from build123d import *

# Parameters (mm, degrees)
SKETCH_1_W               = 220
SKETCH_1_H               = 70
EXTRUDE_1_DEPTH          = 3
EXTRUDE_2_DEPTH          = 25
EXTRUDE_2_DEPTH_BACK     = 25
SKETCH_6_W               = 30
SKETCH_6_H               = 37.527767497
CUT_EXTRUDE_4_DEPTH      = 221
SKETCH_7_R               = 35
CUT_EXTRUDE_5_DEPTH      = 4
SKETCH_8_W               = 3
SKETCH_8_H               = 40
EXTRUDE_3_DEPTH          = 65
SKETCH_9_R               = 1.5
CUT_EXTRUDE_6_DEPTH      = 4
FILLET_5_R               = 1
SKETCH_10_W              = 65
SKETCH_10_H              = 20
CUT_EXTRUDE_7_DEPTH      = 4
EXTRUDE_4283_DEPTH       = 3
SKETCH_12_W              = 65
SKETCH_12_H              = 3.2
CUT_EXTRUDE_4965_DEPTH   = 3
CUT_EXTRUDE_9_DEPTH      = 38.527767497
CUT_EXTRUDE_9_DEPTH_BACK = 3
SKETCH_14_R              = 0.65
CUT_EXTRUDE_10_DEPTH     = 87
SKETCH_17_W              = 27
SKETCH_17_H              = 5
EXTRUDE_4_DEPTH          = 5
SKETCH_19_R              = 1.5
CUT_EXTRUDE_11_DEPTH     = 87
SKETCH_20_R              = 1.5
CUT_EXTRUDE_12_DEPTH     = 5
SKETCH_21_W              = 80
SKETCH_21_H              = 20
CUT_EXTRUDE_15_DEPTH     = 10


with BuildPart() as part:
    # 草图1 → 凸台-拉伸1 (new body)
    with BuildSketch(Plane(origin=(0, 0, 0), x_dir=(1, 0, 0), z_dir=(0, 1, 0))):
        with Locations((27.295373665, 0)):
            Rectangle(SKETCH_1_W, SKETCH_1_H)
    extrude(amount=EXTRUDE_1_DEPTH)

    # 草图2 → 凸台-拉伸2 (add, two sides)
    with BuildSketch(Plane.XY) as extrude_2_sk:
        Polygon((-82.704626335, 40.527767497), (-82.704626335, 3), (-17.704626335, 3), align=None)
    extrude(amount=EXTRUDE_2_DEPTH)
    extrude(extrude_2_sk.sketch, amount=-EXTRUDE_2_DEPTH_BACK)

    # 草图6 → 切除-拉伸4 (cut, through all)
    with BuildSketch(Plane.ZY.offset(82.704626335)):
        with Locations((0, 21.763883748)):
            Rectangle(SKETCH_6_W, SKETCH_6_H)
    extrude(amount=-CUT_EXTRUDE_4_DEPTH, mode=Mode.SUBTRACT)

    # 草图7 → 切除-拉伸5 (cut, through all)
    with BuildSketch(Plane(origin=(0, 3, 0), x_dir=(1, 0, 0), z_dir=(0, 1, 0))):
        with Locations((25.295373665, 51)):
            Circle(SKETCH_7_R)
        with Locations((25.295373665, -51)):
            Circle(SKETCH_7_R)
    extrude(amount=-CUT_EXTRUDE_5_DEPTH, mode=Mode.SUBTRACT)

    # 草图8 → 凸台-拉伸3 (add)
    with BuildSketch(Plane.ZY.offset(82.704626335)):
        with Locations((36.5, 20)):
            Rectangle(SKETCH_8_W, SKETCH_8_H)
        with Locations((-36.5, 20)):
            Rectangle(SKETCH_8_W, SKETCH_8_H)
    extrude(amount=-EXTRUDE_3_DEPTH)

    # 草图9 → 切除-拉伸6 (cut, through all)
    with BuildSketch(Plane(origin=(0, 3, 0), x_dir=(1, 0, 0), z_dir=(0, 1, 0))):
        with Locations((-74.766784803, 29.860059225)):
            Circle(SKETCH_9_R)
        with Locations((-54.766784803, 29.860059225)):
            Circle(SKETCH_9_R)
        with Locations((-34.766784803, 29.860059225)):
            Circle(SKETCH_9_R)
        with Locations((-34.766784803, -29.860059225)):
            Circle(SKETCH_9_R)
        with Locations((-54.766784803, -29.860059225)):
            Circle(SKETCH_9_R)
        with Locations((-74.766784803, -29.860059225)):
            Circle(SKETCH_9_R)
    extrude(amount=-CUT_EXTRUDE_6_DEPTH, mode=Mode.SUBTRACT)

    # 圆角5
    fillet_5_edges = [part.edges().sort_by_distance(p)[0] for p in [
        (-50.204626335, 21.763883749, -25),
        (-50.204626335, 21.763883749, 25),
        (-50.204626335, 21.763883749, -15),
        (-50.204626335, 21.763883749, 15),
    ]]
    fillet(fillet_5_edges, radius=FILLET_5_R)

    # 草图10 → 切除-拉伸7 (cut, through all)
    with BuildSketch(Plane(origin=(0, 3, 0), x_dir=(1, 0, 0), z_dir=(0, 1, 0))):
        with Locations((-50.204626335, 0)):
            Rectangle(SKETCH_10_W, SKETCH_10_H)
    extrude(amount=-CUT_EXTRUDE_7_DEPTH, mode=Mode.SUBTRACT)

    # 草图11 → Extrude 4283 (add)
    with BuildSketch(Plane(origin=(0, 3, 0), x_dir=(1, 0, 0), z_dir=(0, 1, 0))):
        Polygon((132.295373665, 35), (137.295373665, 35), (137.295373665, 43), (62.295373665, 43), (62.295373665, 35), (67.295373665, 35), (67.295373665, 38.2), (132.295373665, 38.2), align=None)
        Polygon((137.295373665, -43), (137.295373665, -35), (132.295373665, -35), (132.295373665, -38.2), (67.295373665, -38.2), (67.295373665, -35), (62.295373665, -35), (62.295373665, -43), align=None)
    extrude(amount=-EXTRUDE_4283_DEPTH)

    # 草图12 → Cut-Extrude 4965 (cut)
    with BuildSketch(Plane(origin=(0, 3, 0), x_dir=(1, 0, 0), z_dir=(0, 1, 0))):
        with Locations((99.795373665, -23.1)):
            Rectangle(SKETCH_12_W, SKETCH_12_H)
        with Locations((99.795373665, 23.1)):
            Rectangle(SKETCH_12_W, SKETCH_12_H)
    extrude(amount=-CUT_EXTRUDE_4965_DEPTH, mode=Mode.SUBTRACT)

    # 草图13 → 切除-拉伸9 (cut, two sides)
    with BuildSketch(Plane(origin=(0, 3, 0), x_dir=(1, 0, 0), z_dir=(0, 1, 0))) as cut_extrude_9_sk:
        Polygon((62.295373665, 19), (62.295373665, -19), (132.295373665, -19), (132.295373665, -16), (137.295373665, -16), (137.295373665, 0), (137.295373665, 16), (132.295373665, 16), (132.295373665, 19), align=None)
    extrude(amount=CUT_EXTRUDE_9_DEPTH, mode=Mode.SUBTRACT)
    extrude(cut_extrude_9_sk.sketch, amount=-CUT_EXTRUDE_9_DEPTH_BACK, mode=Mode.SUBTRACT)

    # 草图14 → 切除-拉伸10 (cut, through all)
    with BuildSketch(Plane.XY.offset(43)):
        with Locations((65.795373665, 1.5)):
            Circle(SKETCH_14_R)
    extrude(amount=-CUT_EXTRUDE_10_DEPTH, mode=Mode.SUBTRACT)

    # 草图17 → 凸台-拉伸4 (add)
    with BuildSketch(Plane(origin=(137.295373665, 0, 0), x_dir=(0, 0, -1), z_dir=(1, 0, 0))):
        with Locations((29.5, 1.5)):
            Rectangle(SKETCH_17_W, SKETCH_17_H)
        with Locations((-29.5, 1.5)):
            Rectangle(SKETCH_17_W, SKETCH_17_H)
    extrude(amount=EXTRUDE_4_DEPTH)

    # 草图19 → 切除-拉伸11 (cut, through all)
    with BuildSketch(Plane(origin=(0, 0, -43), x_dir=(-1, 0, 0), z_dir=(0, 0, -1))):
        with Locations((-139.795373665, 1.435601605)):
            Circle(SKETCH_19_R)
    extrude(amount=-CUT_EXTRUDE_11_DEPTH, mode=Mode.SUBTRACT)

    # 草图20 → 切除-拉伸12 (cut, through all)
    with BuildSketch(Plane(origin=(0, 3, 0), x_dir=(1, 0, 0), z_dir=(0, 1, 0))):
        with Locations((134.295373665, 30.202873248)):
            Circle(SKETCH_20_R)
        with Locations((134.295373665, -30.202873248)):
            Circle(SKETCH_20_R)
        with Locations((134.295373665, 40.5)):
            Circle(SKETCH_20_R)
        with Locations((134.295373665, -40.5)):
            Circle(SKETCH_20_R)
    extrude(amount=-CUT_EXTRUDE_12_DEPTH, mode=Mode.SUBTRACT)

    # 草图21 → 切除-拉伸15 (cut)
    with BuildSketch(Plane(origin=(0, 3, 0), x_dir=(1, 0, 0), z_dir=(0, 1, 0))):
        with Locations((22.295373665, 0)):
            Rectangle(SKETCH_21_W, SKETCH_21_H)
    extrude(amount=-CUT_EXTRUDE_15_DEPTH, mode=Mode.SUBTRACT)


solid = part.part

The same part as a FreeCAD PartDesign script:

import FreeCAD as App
import Part
import Sketcher
Q = App.Units.Quantity


def edges_at(feature, points):
    """Names of the edges that pass closest to the given points."""
    edges = feature.Shape.Edges
    near = lambda p: min(range(len(edges)), key=lambda i: edges[i].distToShape(Part.Vertex(*p))[0])
    return sorted({f"Edge{near(p) + 1}" for p in points})

doc = App.newDocument("Part")
body = doc.addObject("PartDesign::Body", "Body")
body.AllowCompound = True

# Sketch on XZ plane
sketch1 = body.newObject("Sketcher::SketchObject", "Sketch")
sketch1.AttachmentSupport = (doc.getObject("XZ_Plane"), [""])
sketch1.MapMode = "FlatFace"
sketch1.addGeometry([
    Part.LineSegment(App.Vector(-83, -35, 0), App.Vector(-83, 35, 0)),
    Part.LineSegment(App.Vector(-83, 35, 0), App.Vector(137, 35, 0)),
    Part.LineSegment(App.Vector(137, 35, 0), App.Vector(137, -35, 0)),
    Part.LineSegment(App.Vector(137, -35, 0), App.Vector(-83, -35, 0)),
], False)
sketch1.addConstraint([
    Sketcher.Constraint("Coincident", 0, 2, 1, 1),
    Sketcher.Constraint("Coincident", 1, 2, 2, 1),
    Sketcher.Constraint("Coincident", 2, 2, 3, 1),
    Sketcher.Constraint("Coincident", 3, 2, 0, 1),
    Sketcher.Constraint("Vertical", 0),
    Sketcher.Constraint("Horizontal", 1),
    Sketcher.Constraint("Vertical", 2),
    Sketcher.Constraint("Horizontal", 3),
    Sketcher.Constraint("DistanceX", 1, 1, 1, 2, Q("220 mm")),
    Sketcher.Constraint("DistanceY", 0, 1, 0, 2, Q("70 mm")),
    Sketcher.Constraint("DistanceY", -1, 1, 0, 2, Q("35 mm")),
    Sketcher.Constraint("DistanceX", 0, 2, -1, 1, Q("82.704626 mm")),
])
pad1 = body.newObject("PartDesign::Pad", "Pad")
pad1.Profile = sketch1
pad1.Length = 3
pad1.Reversed = True

# Sketch on XY plane
sketch2 = body.newObject("Sketcher::SketchObject", "Sketch001")
sketch2.AttachmentSupport = (doc.getObject("XY_Plane"), [""])
sketch2.MapMode = "FlatFace"
sketch2.addGeometry([
    Part.LineSegment(App.Vector(-83, 41, 0), App.Vector(-83, 3, 0)),
    Part.LineSegment(App.Vector(-83, 3, 0), App.Vector(-18, 3, 0)),
    Part.LineSegment(App.Vector(-18, 3, 0), App.Vector(-83, 41, 0)),
], False)
sketch2.addConstraint([
    Sketcher.Constraint("Coincident", 0, 2, 1, 1),
    Sketcher.Constraint("Coincident", 1, 2, 2, 1),
    Sketcher.Constraint("Coincident", 2, 2, 0, 1),
    Sketcher.Constraint("Vertical", 0),
    Sketcher.Constraint("Horizontal", 1),
    Sketcher.Constraint("DistanceX", 1, 1, 1, 2, Q("65 mm")),
    Sketcher.Constraint("Angle", 2, Q("150 deg")),
    Sketcher.Constraint("DistanceY", -1, 1, 0, 2, Q("3 mm")),
    Sketcher.Constraint("DistanceX", 0, 2, -1, 1, Q("82.704626 mm")),
])
pad2 = body.newObject("PartDesign::Pad", "Pad001")
pad2.Profile = sketch2
pad2.Type = "TwoLengths"
pad2.Length = 25
pad2.Length2 = 25

# Sketch on YZ plane
sketch3 = body.newObject("Sketcher::SketchObject", "Sketch002")
sketch3.AttachmentSupport = (doc.getObject("YZ_Plane"), [""])
sketch3.MapMode = "FlatFace"
sketch3.AttachmentOffset = App.Placement(App.Vector(0, 0, -82.704626), App.Rotation())
sketch3.addGeometry([
    Part.LineSegment(App.Vector(41, -15, 0), App.Vector(3, -15, 0)),
    Part.LineSegment(App.Vector(3, -15, 0), App.Vector(3, 15, 0)),
    Part.LineSegment(App.Vector(3, 15, 0), App.Vector(41, 15, 0)),
    Part.LineSegment(App.Vector(41, 15, 0), App.Vector(41, -15, 0)),
], False)
sketch3.addConstraint([
    Sketcher.Constraint("Coincident", 0, 2, 1, 1),
    Sketcher.Constraint("Coincident", 1, 2, 2, 1),
    Sketcher.Constraint("Coincident", 2, 2, 3, 1),
    Sketcher.Constraint("Coincident", 3, 2, 0, 1),
    Sketcher.Constraint("Horizontal", 0),
    Sketcher.Constraint("Vertical", 1),
    Sketcher.Constraint("Horizontal", 2),
    Sketcher.Constraint("Vertical", 3),
    Sketcher.Constraint("DistanceY", 1, 1, 1, 2, Q("30 mm")),
    Sketcher.Constraint("DistanceX", -1, 1, 0, 2, Q("3 mm")),
    Sketcher.Constraint("DistanceY", 0, 2, -1, 1, Q("15 mm")),
    Sketcher.Constraint("DistanceX", 0, 2, 0, 1, Q("37.527767 mm")),
])
pocket1 = body.newObject("PartDesign::Pocket", "Pocket")
pocket1.Profile = sketch3
pocket1.Type = "ThroughAll"
pocket1.Reversed = True

# Sketch on XZ plane
sketch4 = body.newObject("Sketcher::SketchObject", "Sketch003")
sketch4.AttachmentSupport = (doc.getObject("XZ_Plane"), [""])
sketch4.MapMode = "FlatFace"
sketch4.AttachmentOffset = App.Placement(App.Vector(0, 0, -3), App.Rotation())
sketch4.addGeometry([
    Part.Circle(App.Vector(25, -51, 0), App.Vector(0, 0, 1), 35),
    Part.Circle(App.Vector(25, 51, 0), App.Vector(0, 0, 1), 35),
], False)
sketch4.addConstraint([
    Sketcher.Constraint("Equal", 0, 1),
    Sketcher.Constraint("Symmetric", 0, 3, 1, 3, -1),
    Sketcher.Constraint("Diameter", 0, Q("70 mm")),
    Sketcher.Constraint("DistanceY", 0, 3, -1, 1, Q("51 mm")),
    Sketcher.Constraint("DistanceX", -1, 1, 0, 3, Q("25.295374 mm")),
])
pocket2 = body.newObject("PartDesign::Pocket", "Pocket001")
pocket2.Profile = sketch4
pocket2.Type = "ThroughAll"
pocket2.Reversed = True

# Sketch on YZ plane
sketch5 = body.newObject("Sketcher::SketchObject", "Sketch004")
sketch5.AttachmentSupport = (doc.getObject("YZ_Plane"), [""])
sketch5.MapMode = "FlatFace"
sketch5.AttachmentOffset = App.Placement(App.Vector(0, 0, -82.704626), App.Rotation())
sketch5.addGeometry([
    Part.LineSegment(App.Vector(40, 35, 0), App.Vector(0, 35, 0)),  # 0
    Part.LineSegment(App.Vector(0, 35, 0), App.Vector(0, 38, 0)),  # 1
    Part.LineSegment(App.Vector(0, 38, 0), App.Vector(40, 38, 0)),  # 2
    Part.LineSegment(App.Vector(40, 38, 0), App.Vector(40, 35, 0)),  # 3
    Part.LineSegment(App.Vector(40, -38, 0), App.Vector(0, -38, 0)),  # 4
    Part.LineSegment(App.Vector(0, -38, 0), App.Vector(0, -35, 0)),  # 5
    Part.LineSegment(App.Vector(0, -35, 0), App.Vector(40, -35, 0)),  # 6
    Part.LineSegment(App.Vector(40, -35, 0), App.Vector(40, -38, 0)),  # 7
], False)
sketch5.addConstraint([
    Sketcher.Constraint("Coincident", 0, 2, 1, 1),
    Sketcher.Constraint("Coincident", 1, 2, 2, 1),
    Sketcher.Constraint("Coincident", 2, 2, 3, 1),
    Sketcher.Constraint("Coincident", 3, 2, 0, 1),
    Sketcher.Constraint("Coincident", 4, 2, 5, 1),
    Sketcher.Constraint("Coincident", 5, 2, 6, 1),
    Sketcher.Constraint("Coincident", 6, 2, 7, 1),
    Sketcher.Constraint("Coincident", 7, 2, 4, 1),
    Sketcher.Constraint("Horizontal", 0),
    Sketcher.Constraint("Vertical", 1),
    Sketcher.Constraint("Horizontal", 2),
    Sketcher.Constraint("Vertical", 3),
    Sketcher.Constraint("Horizontal", 4),
    Sketcher.Constraint("Vertical", 5),
    Sketcher.Constraint("Horizontal", 6),
    Sketcher.Constraint("Vertical", 7),
    Sketcher.Constraint("Symmetric", 1, 2, 4, 2, -1, 1),
    Sketcher.Constraint("Symmetric", 0, 2, 5, 2, -1),
    Sketcher.Constraint("Vertical", 3, 2, 6, 2),
    Sketcher.Constraint("DistanceX", 0, 2, 0, 1, Q("40 mm")),
    Sketcher.Constraint("DistanceY", 1, 1, 1, 2, Q("3 mm")),
    Sketcher.Constraint("DistanceY", -1, 1, 0, 2, Q("35 mm")),
])
pad3 = body.newObject("PartDesign::Pad", "Pad002")
pad3.Profile = sketch5
pad3.Length = 65

# Sketch on XZ plane
sketch6 = body.newObject("Sketcher::SketchObject", "Sketch005")
sketch6.AttachmentSupport = (doc.getObject("XZ_Plane"), [""])
sketch6.MapMode = "FlatFace"
sketch6.AttachmentOffset = App.Placement(App.Vector(0, 0, -3), App.Rotation())
sketch6.addGeometry([
    Part.Circle(App.Vector(-74.8, -29.9, 0), App.Vector(0, 0, 1), 1.5),  # 0
    Part.Circle(App.Vector(-54.8, -29.9, 0), App.Vector(0, 0, 1), 1.5),  # 1
    Part.Circle(App.Vector(-34.8, -29.9, 0), App.Vector(0, 0, 1), 1.5),  # 2
    Part.Circle(App.Vector(-34.8, 29.9, 0), App.Vector(0, 0, 1), 1.5),  # 3
    Part.Circle(App.Vector(-54.8, 29.9, 0), App.Vector(0, 0, 1), 1.5),  # 4
    Part.Circle(App.Vector(-74.8, 29.9, 0), App.Vector(0, 0, 1), 1.5),  # 5
], False)
sketch6.addConstraint([
    Sketcher.Constraint("Equal", 0, 1),
    Sketcher.Constraint("Equal", 1, 2),
    Sketcher.Constraint("Equal", 2, 3),
    Sketcher.Constraint("Equal", 3, 4),
    Sketcher.Constraint("Equal", 4, 5),
    Sketcher.Constraint("Symmetric", 2, 3, 3, 3, -1),
    Sketcher.Constraint("Symmetric", 1, 3, 4, 3, -1),
    Sketcher.Constraint("Symmetric", 0, 3, 5, 3, -1),
    Sketcher.Constraint("Horizontal", 0, 3, 1, 3),
    Sketcher.Constraint("Horizontal", 1, 3, 2, 3),
    Sketcher.Constraint("Diameter", 0, Q("3 mm")),
    Sketcher.Constraint("DistanceX", 0, 3, 1, 3, Q("20 mm")),
    Sketcher.Constraint("DistanceX", 1, 3, 2, 3, Q("20 mm")),
    Sketcher.Constraint("DistanceY", 0, 3, -1, 1, Q("29.860059 mm")),
    Sketcher.Constraint("DistanceX", 0, 3, -1, 1, Q("74.766785 mm")),
])
pocket3 = body.newObject("PartDesign::Pocket", "Pocket002")
pocket3.Profile = sketch6
pocket3.Type = "ThroughAll"
pocket3.Reversed = True
doc.recompute()

fillet = body.newObject("PartDesign::Fillet", "Fillet")
fillet.Base = (pocket3, edges_at(pocket3, [
    (-50.205, 21.764, -25),
    (-50.205, 21.764, 25),
    (-50.205, 21.764, -15),
    (-50.205, 21.764, 15),
]))
fillet.Radius = 1

# Sketch on XZ plane
sketch7 = body.newObject("Sketcher::SketchObject", "Sketch006")
sketch7.AttachmentSupport = (doc.getObject("XZ_Plane"), [""])
sketch7.MapMode = "FlatFace"
sketch7.AttachmentOffset = App.Placement(App.Vector(0, 0, -3), App.Rotation())
sketch7.addGeometry([
    Part.LineSegment(App.Vector(-83, -10, 0), App.Vector(-83, 10, 0)),
    Part.LineSegment(App.Vector(-83, 10, 0), App.Vector(-18, 10, 0)),
    Part.LineSegment(App.Vector(-18, 10, 0), App.Vector(-18, -10, 0)),
    Part.LineSegment(App.Vector(-18, -10, 0), App.Vector(-83, -10, 0)),
], False)
sketch7.addConstraint([
    Sketcher.Constraint("Coincident", 0, 2, 1, 1),
    Sketcher.Constraint("Coincident", 1, 2, 2, 1),
    Sketcher.Constraint("Coincident", 2, 2, 3, 1),
    Sketcher.Constraint("Coincident", 3, 2, 0, 1),
    Sketcher.Constraint("Vertical", 0),
    Sketcher.Constraint("Horizontal", 1),
    Sketcher.Constraint("Vertical", 2),
    Sketcher.Constraint("Horizontal", 3),
    Sketcher.Constraint("DistanceX", 1, 1, 1, 2, Q("65 mm")),
    Sketcher.Constraint("DistanceY", 0, 1, 0, 2, Q("20 mm")),
    Sketcher.Constraint("DistanceY", -1, 1, 0, 2, Q("10 mm")),
    Sketcher.Constraint("DistanceX", 0, 2, -1, 1, Q("82.704626 mm")),
])
pocket4 = body.newObject("PartDesign::Pocket", "Pocket003")
pocket4.Profile = sketch7
pocket4.Type = "ThroughAll"
pocket4.Reversed = True

# Sketch on XZ plane
sketch8 = body.newObject("Sketcher::SketchObject", "Sketch007")
sketch8.AttachmentSupport = (doc.getObject("XZ_Plane"), [""])
sketch8.MapMode = "FlatFace"
sketch8.AttachmentOffset = App.Placement(App.Vector(0, 0, -3), App.Rotation())
sketch8.addGeometry([
    Part.LineSegment(App.Vector(132.3, -35, 0), App.Vector(137.3, -35, 0)),  # 0
    Part.LineSegment(App.Vector(137.3, -35, 0), App.Vector(137.3, -43, 0)),  # 1
    Part.LineSegment(App.Vector(137.3, -43, 0), App.Vector(62.3, -43, 0)),  # 2
    Part.LineSegment(App.Vector(62.3, -43, 0), App.Vector(62.3, -35, 0)),  # 3
    Part.LineSegment(App.Vector(62.3, -35, 0), App.Vector(67.3, -35, 0)),  # 4
    Part.LineSegment(App.Vector(67.3, -35, 0), App.Vector(67.3, -38.2, 0)),  # 5
    Part.LineSegment(App.Vector(67.3, -38.2, 0), App.Vector(132.3, -38.2, 0)),  # 6
    Part.LineSegment(App.Vector(132.3, -38.2, 0), App.Vector(132.3, -35, 0)),  # 7
    Part.LineSegment(App.Vector(137.3, 43, 0), App.Vector(137.3, 35, 0)),  # 8
    Part.LineSegment(App.Vector(137.3, 35, 0), App.Vector(132.3, 35, 0)),  # 9
    Part.LineSegment(App.Vector(132.3, 35, 0), App.Vector(132.3, 38.2, 0)),  # 10
    Part.LineSegment(App.Vector(132.3, 38.2, 0), App.Vector(67.3, 38.2, 0)),  # 11
    Part.LineSegment(App.Vector(67.3, 38.2, 0), App.Vector(67.3, 35, 0)),  # 12
    Part.LineSegment(App.Vector(67.3, 35, 0), App.Vector(62.3, 35, 0)),  # 13
    Part.LineSegment(App.Vector(62.3, 35, 0), App.Vector(62.3, 43, 0)),  # 14
    Part.LineSegment(App.Vector(62.3, 43, 0), App.Vector(137.3, 43, 0)),  # 15
], False)
sketch8.addConstraint([
    Sketcher.Constraint("Coincident", 0, 2, 1, 1),
    Sketcher.Constraint("Coincident", 1, 2, 2, 1),
    Sketcher.Constraint("Coincident", 2, 2, 3, 1),
    Sketcher.Constraint("Coincident", 3, 2, 4, 1),
    Sketcher.Constraint("Coincident", 4, 2, 5, 1),
    Sketcher.Constraint("Coincident", 5, 2, 6, 1),
    Sketcher.Constraint("Coincident", 6, 2, 7, 1),
    Sketcher.Constraint("Coincident", 7, 2, 0, 1),
    Sketcher.Constraint("Coincident", 8, 2, 9, 1),
    Sketcher.Constraint("Coincident", 9, 2, 10, 1),
    Sketcher.Constraint("Coincident", 10, 2, 11, 1),
    Sketcher.Constraint("Coincident", 11, 2, 12, 1),
    Sketcher.Constraint("Coincident", 12, 2, 13, 1),
    Sketcher.Constraint("Coincident", 13, 2, 14, 1),
    Sketcher.Constraint("Coincident", 14, 2, 15, 1),
    Sketcher.Constraint("Coincident", 15, 2, 8, 1),
    Sketcher.Constraint("Horizontal", 0),
    Sketcher.Constraint("Vertical", 1),
    Sketcher.Constraint("Horizontal", 2),
    Sketcher.Constraint("Vertical", 3),
    Sketcher.Constraint("Horizontal", 4),
    Sketcher.Constraint("Vertical", 5),
    Sketcher.Constraint("Horizontal", 6),
    Sketcher.Constraint("Vertical", 7),
    Sketcher.Constraint("Vertical", 8),
    Sketcher.Constraint("Horizontal", 9),
    Sketcher.Constraint("Vertical", 10),
    Sketcher.Constraint("Horizontal", 11),
    Sketcher.Constraint("Vertical", 12),
    Sketcher.Constraint("Horizontal", 13),
    Sketcher.Constraint("Vertical", 14),
    Sketcher.Constraint("Horizontal", 15),
    Sketcher.Constraint("Symmetric", 0, 2, 8, 2, -1),
    Sketcher.Constraint("Symmetric", 6, 2, 10, 2, -1),
    Sketcher.Constraint("Symmetric", 4, 2, 12, 2, -1),
    Sketcher.Constraint("Symmetric", 2, 2, 14, 2, -1),
    Sketcher.Constraint("Horizontal", 0, 2, 3, 2),
    Sketcher.Constraint("Equal", 0, 4),
    Sketcher.Constraint("DistanceX", 0, 1, 0, 2, Q("5 mm")),
    Sketcher.Constraint("DistanceX", 2, 2, 2, 1, Q("75 mm")),
    Sketcher.Constraint("DistanceY", 1, 2, 1, 1, Q("8 mm")),
    Sketcher.Constraint("DistanceY", 5, 2, 5, 1, Q("3.2 mm")),
    Sketcher.Constraint("DistanceY", 0, 2, -1, 1, Q("35 mm")),
    Sketcher.Constraint("DistanceX", -1, 1, 0, 2, Q("137.295374 mm")),
])
pad4 = body.newObject("PartDesign::Pad", "Pad003")
pad4.Profile = sketch8
pad4.Length = 3

# Sketch on XZ plane
sketch9 = body.newObject("Sketcher::SketchObject", "Sketch008")
sketch9.AttachmentSupport = (doc.getObject("XZ_Plane"), [""])
sketch9.MapMode = "FlatFace"
sketch9.AttachmentOffset = App.Placement(App.Vector(0, 0, -3), App.Rotation())
sketch9.addGeometry([
    Part.LineSegment(App.Vector(67.3, 21.5, 0), App.Vector(67.3, 24.7, 0)),  # 0
    Part.LineSegment(App.Vector(67.3, 24.7, 0), App.Vector(132.3, 24.7, 0)),  # 1
    Part.LineSegment(App.Vector(132.3, 24.7, 0), App.Vector(132.3, 21.5, 0)),  # 2
    Part.LineSegment(App.Vector(132.3, 21.5, 0), App.Vector(67.3, 21.5, 0)),  # 3
    Part.LineSegment(App.Vector(67.3, -24.7, 0), App.Vector(67.3, -21.5, 0)),  # 4
    Part.LineSegment(App.Vector(67.3, -21.5, 0), App.Vector(132.3, -21.5, 0)),  # 5
    Part.LineSegment(App.Vector(132.3, -21.5, 0), App.Vector(132.3, -24.7, 0)),  # 6
    Part.LineSegment(App.Vector(132.3, -24.7, 0), App.Vector(67.3, -24.7, 0)),  # 7
], False)
sketch9.addConstraint([
    Sketcher.Constraint("Coincident", 0, 2, 1, 1),
    Sketcher.Constraint("Coincident", 1, 2, 2, 1),
    Sketcher.Constraint("Coincident", 2, 2, 3, 1),
    Sketcher.Constraint("Coincident", 3, 2, 0, 1),
    Sketcher.Constraint("Coincident", 4, 2, 5, 1),
    Sketcher.Constraint("Coincident", 5, 2, 6, 1),
    Sketcher.Constraint("Coincident", 6, 2, 7, 1),
    Sketcher.Constraint("Coincident", 7, 2, 4, 1),
    Sketcher.Constraint("Vertical", 0),
    Sketcher.Constraint("Horizontal", 1),
    Sketcher.Constraint("Vertical", 2),
    Sketcher.Constraint("Horizontal", 3),
    Sketcher.Constraint("Vertical", 4),
    Sketcher.Constraint("Horizontal", 5),
    Sketcher.Constraint("Vertical", 6),
    Sketcher.Constraint("Horizontal", 7),
    Sketcher.Constraint("Symmetric", 3, 2, 4, 2, -1),
    Sketcher.Constraint("Symmetric", 1, 2, 6, 2, -1),
    Sketcher.Constraint("DistanceX", 1, 1, 1, 2, Q("65 mm")),
    Sketcher.Constraint("DistanceY", 0, 1, 0, 2, Q("3.2 mm")),
    Sketcher.Constraint("DistanceY", 4, 2, 3, 2, Q("43 mm")),
    Sketcher.Constraint("DistanceX", -1, 1, 0, 2, Q("67.295374 mm")),
])
pocket5 = body.newObject("PartDesign::Pocket", "Pocket004")
pocket5.Profile = sketch9
pocket5.Length = 3
pocket5.Reversed = True

# Sketch on XZ plane
sketch10 = body.newObject("Sketcher::SketchObject", "Sketch009")
sketch10.AttachmentSupport = (doc.getObject("XZ_Plane"), [""])
sketch10.MapMode = "FlatFace"
sketch10.AttachmentOffset = App.Placement(App.Vector(0, 0, -3), App.Rotation())
sketch10.addGeometry([
    Part.LineSegment(App.Vector(62.3, -19, 0), App.Vector(62.3, 19, 0)),  # 0
    Part.LineSegment(App.Vector(62.3, 19, 0), App.Vector(132.3, 19, 0)),  # 1
    Part.LineSegment(App.Vector(132.3, 19, 0), App.Vector(132.3, 16, 0)),  # 2
    Part.LineSegment(App.Vector(132.3, 16, 0), App.Vector(137.3, 16, 0)),  # 3
    Part.LineSegment(App.Vector(137.3, 16, 0), App.Vector(137.3, -16, 0)),  # 4
    Part.LineSegment(App.Vector(137.3, -16, 0), App.Vector(132.3, -16, 0)),  # 5
    Part.LineSegment(App.Vector(132.3, -16, 0), App.Vector(132.3, -19, 0)),  # 6
    Part.LineSegment(App.Vector(132.3, -19, 0), App.Vector(62.3, -19, 0)),  # 7
], False)
sketch10.addConstraint([
    Sketcher.Constraint("Coincident", 0, 2, 1, 1),
    Sketcher.Constraint("Coincident", 1, 2, 2, 1),
    Sketcher.Constraint("Coincident", 2, 2, 3, 1),
    Sketcher.Constraint("Coincident", 3, 2, 4, 1),
    Sketcher.Constraint("Coincident", 4, 2, 5, 1),
    Sketcher.Constraint("Coincident", 5, 2, 6, 1),
    Sketcher.Constraint("Coincident", 6, 2, 7, 1),
    Sketcher.Constraint("Coincident", 7, 2, 0, 1),
    Sketcher.Constraint("Vertical", 0),
    Sketcher.Constraint("Horizontal", 1),
    Sketcher.Constraint("Vertical", 2),
    Sketcher.Constraint("Horizontal", 3),
    Sketcher.Constraint("Vertical", 4),
    Sketcher.Constraint("Horizontal", 5),
    Sketcher.Constraint("Vertical", 6),
    Sketcher.Constraint("Horizontal", 7),
    Sketcher.Constraint("Symmetric", 2, 2, 5, 2, -1),
    Sketcher.Constraint("Equal", 2, 6),
    Sketcher.Constraint("DistanceX", 1, 1, 1, 2, Q("70 mm")),
    Sketcher.Constraint("DistanceX", 3, 1, 3, 2, Q("5 mm")),
    Sketcher.Constraint("DistanceY", 0, 1, 0, 2, Q("38 mm")),
    Sketcher.Constraint("DistanceY", 2, 2, 2, 1, Q("3 mm")),
    Sketcher.Constraint("DistanceX", -1, 1, 0, 2, Q("62.295374 mm")),
])
pocket6 = body.newObject("PartDesign::Pocket", "Pocket005")
pocket6.Profile = sketch10
pocket6.Type = "ThroughAll"
pocket6.Midplane = True

# Sketch on XY plane
sketch11 = body.newObject("Sketcher::SketchObject", "Sketch010")
sketch11.AttachmentSupport = (doc.getObject("XY_Plane"), [""])
sketch11.MapMode = "FlatFace"
sketch11.AttachmentOffset = App.Placement(App.Vector(0, 0, 43), App.Rotation())
sketch11.addGeometry(Part.Circle(App.Vector(65.8, 1.5, 0), App.Vector(0, 0, 1), 0.7), False)
sketch11.addConstraint([
    Sketcher.Constraint("Diameter", 0, Q("1.3 mm")),
    Sketcher.Constraint("DistanceY", -1, 1, 0, 3, Q("1.5 mm")),
    Sketcher.Constraint("DistanceX", -1, 1, 0, 3, Q("65.795374 mm")),
])
pocket7 = body.newObject("PartDesign::Pocket", "Pocket006")
pocket7.Profile = sketch11
pocket7.Type = "ThroughAll"

# Sketch on YZ plane
sketch12 = body.newObject("Sketcher::SketchObject", "Sketch011")
sketch12.AttachmentSupport = (doc.getObject("YZ_Plane"), [""])
sketch12.MapMode = "FlatFace"
sketch12.AttachmentOffset = App.Placement(App.Vector(0, 0, 137.295374), App.Rotation())
sketch12.addGeometry([
    Part.LineSegment(App.Vector(4, -16, 0), App.Vector(-1, -16, 0)),  # 0
    Part.LineSegment(App.Vector(-1, -16, 0), App.Vector(-1, -43, 0)),  # 1
    Part.LineSegment(App.Vector(-1, -43, 0), App.Vector(4, -43, 0)),  # 2
    Part.LineSegment(App.Vector(4, -43, 0), App.Vector(4, -16, 0)),  # 3
    Part.LineSegment(App.Vector(4, 43, 0), App.Vector(-1, 43, 0)),  # 4
    Part.LineSegment(App.Vector(-1, 43, 0), App.Vector(-1, 16, 0)),  # 5
    Part.LineSegment(App.Vector(-1, 16, 0), App.Vector(4, 16, 0)),  # 6
    Part.LineSegment(App.Vector(4, 16, 0), App.Vector(4, 43, 0)),  # 7
], False)
sketch12.addConstraint([
    Sketcher.Constraint("Coincident", 0, 2, 1, 1),
    Sketcher.Constraint("Coincident", 1, 2, 2, 1),
    Sketcher.Constraint("Coincident", 2, 2, 3, 1),
    Sketcher.Constraint("Coincident", 3, 2, 0, 1),
    Sketcher.Constraint("Coincident", 4, 2, 5, 1),
    Sketcher.Constraint("Coincident", 5, 2, 6, 1),
    Sketcher.Constraint("Coincident", 6, 2, 7, 1),
    Sketcher.Constraint("Coincident", 7, 2, 4, 1),
    Sketcher.Constraint("Horizontal", 0),
    Sketcher.Constraint("Vertical", 1),
    Sketcher.Constraint("Horizontal", 2),
    Sketcher.Constraint("Vertical", 3),
    Sketcher.Constraint("Horizontal", 4),
    Sketcher.Constraint("Vertical", 5),
    Sketcher.Constraint("Horizontal", 6),
    Sketcher.Constraint("Vertical", 7),
    Sketcher.Constraint("Symmetric", 1, 2, 4, 2, -1),
    Sketcher.Constraint("Symmetric", 3, 2, 6, 2, -1),
    Sketcher.Constraint("DistanceX", 0, 2, 0, 1, Q("5 mm")),
    Sketcher.Constraint("DistanceY", 1, 2, 1, 1, Q("27 mm")),
    Sketcher.Constraint("DistanceX", 0, 2, -1, 1, Q("1 mm")),
    Sketcher.Constraint("DistanceY", 0, 2, -1, 1, Q("16 mm")),
])
pad5 = body.newObject("PartDesign::Pad", "Pad004")
pad5.Profile = sketch12
pad5.Length = 5

# Sketch on XY plane
sketch13 = body.newObject("Sketcher::SketchObject", "Sketch012")
sketch13.AttachmentSupport = (doc.getObject("XY_Plane"), [""])
sketch13.MapMode = "FlatFace"
sketch13.AttachmentOffset = App.Placement(App.Vector(0, 0, -43), App.Rotation())
sketch13.addGeometry(Part.Circle(App.Vector(139.8, 1.4, 0), App.Vector(0, 0, 1), 1.5), False)
sketch13.addConstraint([
    Sketcher.Constraint("Diameter", 0, Q("3 mm")),
    Sketcher.Constraint("DistanceY", -1, 1, 0, 3, Q("1.435602 mm")),
    Sketcher.Constraint("DistanceX", -1, 1, 0, 3, Q("139.795374 mm")),
])
pocket8 = body.newObject("PartDesign::Pocket", "Pocket007")
pocket8.Profile = sketch13
pocket8.Type = "ThroughAll"
pocket8.Reversed = True

# Sketch on XZ plane
sketch14 = body.newObject("Sketcher::SketchObject", "Sketch013")
sketch14.AttachmentSupport = (doc.getObject("XZ_Plane"), [""])
sketch14.MapMode = "FlatFace"
sketch14.AttachmentOffset = App.Placement(App.Vector(0, 0, -3), App.Rotation())
sketch14.addGeometry([
    Part.Circle(App.Vector(134.3, -30.2, 0), App.Vector(0, 0, 1), 1.5),
    Part.Circle(App.Vector(134.3, 30.2, 0), App.Vector(0, 0, 1), 1.5),
    Part.Circle(App.Vector(134.3, -40.5, 0), App.Vector(0, 0, 1), 1.5),
    Part.Circle(App.Vector(134.3, 40.5, 0), App.Vector(0, 0, 1), 1.5),
], False)
sketch14.addConstraint([
    Sketcher.Constraint("Equal", 0, 1),
    Sketcher.Constraint("Equal", 1, 2),
    Sketcher.Constraint("Equal", 2, 3),
    Sketcher.Constraint("Symmetric", 0, 3, 1, 3, -1),
    Sketcher.Constraint("Symmetric", 2, 3, 3, 3, -1),
    Sketcher.Constraint("Vertical", 1, 3, 2, 3),
    Sketcher.Constraint("Diameter", 0, Q("3 mm")),
    Sketcher.Constraint("DistanceY", 2, 3, 3, 3, Q("81 mm")),
    Sketcher.Constraint("DistanceX", -1, 1, 0, 3, Q("134.295374 mm")),
    Sketcher.Constraint("DistanceY", 0, 3, -1, 1, Q("30.202873 mm")),
])
pocket9 = body.newObject("PartDesign::Pocket", "Pocket008")
pocket9.Profile = sketch14
pocket9.Type = "ThroughAll"
pocket9.Reversed = True

# Sketch on XZ plane
sketch15 = body.newObject("Sketcher::SketchObject", "Sketch014")
sketch15.AttachmentSupport = (doc.getObject("XZ_Plane"), [""])
sketch15.MapMode = "FlatFace"
sketch15.AttachmentOffset = App.Placement(App.Vector(0, 0, -3), App.Rotation())
sketch15.addGeometry([
    Part.LineSegment(App.Vector(-18, -10, 0), App.Vector(-18, 10, 0)),
    Part.LineSegment(App.Vector(-18, 10, 0), App.Vector(62, 10, 0)),
    Part.LineSegment(App.Vector(62, 10, 0), App.Vector(62, -10, 0)),
    Part.LineSegment(App.Vector(62, -10, 0), App.Vector(-18, -10, 0)),
], False)
sketch15.addConstraint([
    Sketcher.Constraint("Coincident", 0, 2, 1, 1),
    Sketcher.Constraint("Coincident", 1, 2, 2, 1),
    Sketcher.Constraint("Coincident", 2, 2, 3, 1),
    Sketcher.Constraint("Coincident", 3, 2, 0, 1),
    Sketcher.Constraint("Vertical", 0),
    Sketcher.Constraint("Horizontal", 1),
    Sketcher.Constraint("Vertical", 2),
    Sketcher.Constraint("Horizontal", 3),
    Sketcher.Constraint("DistanceX", 1, 1, 1, 2, Q("80 mm")),
    Sketcher.Constraint("DistanceY", 0, 1, 0, 2, Q("20 mm")),
    Sketcher.Constraint("DistanceY", -1, 1, 0, 2, Q("10 mm")),
    Sketcher.Constraint("DistanceX", 0, 2, -1, 1, Q("17.704626 mm")),
])
pocket10 = body.newObject("PartDesign::Pocket", "Pocket009")
pocket10.Profile = sketch15
pocket10.Length = 10
pocket10.Reversed = True

doc.recompute()
